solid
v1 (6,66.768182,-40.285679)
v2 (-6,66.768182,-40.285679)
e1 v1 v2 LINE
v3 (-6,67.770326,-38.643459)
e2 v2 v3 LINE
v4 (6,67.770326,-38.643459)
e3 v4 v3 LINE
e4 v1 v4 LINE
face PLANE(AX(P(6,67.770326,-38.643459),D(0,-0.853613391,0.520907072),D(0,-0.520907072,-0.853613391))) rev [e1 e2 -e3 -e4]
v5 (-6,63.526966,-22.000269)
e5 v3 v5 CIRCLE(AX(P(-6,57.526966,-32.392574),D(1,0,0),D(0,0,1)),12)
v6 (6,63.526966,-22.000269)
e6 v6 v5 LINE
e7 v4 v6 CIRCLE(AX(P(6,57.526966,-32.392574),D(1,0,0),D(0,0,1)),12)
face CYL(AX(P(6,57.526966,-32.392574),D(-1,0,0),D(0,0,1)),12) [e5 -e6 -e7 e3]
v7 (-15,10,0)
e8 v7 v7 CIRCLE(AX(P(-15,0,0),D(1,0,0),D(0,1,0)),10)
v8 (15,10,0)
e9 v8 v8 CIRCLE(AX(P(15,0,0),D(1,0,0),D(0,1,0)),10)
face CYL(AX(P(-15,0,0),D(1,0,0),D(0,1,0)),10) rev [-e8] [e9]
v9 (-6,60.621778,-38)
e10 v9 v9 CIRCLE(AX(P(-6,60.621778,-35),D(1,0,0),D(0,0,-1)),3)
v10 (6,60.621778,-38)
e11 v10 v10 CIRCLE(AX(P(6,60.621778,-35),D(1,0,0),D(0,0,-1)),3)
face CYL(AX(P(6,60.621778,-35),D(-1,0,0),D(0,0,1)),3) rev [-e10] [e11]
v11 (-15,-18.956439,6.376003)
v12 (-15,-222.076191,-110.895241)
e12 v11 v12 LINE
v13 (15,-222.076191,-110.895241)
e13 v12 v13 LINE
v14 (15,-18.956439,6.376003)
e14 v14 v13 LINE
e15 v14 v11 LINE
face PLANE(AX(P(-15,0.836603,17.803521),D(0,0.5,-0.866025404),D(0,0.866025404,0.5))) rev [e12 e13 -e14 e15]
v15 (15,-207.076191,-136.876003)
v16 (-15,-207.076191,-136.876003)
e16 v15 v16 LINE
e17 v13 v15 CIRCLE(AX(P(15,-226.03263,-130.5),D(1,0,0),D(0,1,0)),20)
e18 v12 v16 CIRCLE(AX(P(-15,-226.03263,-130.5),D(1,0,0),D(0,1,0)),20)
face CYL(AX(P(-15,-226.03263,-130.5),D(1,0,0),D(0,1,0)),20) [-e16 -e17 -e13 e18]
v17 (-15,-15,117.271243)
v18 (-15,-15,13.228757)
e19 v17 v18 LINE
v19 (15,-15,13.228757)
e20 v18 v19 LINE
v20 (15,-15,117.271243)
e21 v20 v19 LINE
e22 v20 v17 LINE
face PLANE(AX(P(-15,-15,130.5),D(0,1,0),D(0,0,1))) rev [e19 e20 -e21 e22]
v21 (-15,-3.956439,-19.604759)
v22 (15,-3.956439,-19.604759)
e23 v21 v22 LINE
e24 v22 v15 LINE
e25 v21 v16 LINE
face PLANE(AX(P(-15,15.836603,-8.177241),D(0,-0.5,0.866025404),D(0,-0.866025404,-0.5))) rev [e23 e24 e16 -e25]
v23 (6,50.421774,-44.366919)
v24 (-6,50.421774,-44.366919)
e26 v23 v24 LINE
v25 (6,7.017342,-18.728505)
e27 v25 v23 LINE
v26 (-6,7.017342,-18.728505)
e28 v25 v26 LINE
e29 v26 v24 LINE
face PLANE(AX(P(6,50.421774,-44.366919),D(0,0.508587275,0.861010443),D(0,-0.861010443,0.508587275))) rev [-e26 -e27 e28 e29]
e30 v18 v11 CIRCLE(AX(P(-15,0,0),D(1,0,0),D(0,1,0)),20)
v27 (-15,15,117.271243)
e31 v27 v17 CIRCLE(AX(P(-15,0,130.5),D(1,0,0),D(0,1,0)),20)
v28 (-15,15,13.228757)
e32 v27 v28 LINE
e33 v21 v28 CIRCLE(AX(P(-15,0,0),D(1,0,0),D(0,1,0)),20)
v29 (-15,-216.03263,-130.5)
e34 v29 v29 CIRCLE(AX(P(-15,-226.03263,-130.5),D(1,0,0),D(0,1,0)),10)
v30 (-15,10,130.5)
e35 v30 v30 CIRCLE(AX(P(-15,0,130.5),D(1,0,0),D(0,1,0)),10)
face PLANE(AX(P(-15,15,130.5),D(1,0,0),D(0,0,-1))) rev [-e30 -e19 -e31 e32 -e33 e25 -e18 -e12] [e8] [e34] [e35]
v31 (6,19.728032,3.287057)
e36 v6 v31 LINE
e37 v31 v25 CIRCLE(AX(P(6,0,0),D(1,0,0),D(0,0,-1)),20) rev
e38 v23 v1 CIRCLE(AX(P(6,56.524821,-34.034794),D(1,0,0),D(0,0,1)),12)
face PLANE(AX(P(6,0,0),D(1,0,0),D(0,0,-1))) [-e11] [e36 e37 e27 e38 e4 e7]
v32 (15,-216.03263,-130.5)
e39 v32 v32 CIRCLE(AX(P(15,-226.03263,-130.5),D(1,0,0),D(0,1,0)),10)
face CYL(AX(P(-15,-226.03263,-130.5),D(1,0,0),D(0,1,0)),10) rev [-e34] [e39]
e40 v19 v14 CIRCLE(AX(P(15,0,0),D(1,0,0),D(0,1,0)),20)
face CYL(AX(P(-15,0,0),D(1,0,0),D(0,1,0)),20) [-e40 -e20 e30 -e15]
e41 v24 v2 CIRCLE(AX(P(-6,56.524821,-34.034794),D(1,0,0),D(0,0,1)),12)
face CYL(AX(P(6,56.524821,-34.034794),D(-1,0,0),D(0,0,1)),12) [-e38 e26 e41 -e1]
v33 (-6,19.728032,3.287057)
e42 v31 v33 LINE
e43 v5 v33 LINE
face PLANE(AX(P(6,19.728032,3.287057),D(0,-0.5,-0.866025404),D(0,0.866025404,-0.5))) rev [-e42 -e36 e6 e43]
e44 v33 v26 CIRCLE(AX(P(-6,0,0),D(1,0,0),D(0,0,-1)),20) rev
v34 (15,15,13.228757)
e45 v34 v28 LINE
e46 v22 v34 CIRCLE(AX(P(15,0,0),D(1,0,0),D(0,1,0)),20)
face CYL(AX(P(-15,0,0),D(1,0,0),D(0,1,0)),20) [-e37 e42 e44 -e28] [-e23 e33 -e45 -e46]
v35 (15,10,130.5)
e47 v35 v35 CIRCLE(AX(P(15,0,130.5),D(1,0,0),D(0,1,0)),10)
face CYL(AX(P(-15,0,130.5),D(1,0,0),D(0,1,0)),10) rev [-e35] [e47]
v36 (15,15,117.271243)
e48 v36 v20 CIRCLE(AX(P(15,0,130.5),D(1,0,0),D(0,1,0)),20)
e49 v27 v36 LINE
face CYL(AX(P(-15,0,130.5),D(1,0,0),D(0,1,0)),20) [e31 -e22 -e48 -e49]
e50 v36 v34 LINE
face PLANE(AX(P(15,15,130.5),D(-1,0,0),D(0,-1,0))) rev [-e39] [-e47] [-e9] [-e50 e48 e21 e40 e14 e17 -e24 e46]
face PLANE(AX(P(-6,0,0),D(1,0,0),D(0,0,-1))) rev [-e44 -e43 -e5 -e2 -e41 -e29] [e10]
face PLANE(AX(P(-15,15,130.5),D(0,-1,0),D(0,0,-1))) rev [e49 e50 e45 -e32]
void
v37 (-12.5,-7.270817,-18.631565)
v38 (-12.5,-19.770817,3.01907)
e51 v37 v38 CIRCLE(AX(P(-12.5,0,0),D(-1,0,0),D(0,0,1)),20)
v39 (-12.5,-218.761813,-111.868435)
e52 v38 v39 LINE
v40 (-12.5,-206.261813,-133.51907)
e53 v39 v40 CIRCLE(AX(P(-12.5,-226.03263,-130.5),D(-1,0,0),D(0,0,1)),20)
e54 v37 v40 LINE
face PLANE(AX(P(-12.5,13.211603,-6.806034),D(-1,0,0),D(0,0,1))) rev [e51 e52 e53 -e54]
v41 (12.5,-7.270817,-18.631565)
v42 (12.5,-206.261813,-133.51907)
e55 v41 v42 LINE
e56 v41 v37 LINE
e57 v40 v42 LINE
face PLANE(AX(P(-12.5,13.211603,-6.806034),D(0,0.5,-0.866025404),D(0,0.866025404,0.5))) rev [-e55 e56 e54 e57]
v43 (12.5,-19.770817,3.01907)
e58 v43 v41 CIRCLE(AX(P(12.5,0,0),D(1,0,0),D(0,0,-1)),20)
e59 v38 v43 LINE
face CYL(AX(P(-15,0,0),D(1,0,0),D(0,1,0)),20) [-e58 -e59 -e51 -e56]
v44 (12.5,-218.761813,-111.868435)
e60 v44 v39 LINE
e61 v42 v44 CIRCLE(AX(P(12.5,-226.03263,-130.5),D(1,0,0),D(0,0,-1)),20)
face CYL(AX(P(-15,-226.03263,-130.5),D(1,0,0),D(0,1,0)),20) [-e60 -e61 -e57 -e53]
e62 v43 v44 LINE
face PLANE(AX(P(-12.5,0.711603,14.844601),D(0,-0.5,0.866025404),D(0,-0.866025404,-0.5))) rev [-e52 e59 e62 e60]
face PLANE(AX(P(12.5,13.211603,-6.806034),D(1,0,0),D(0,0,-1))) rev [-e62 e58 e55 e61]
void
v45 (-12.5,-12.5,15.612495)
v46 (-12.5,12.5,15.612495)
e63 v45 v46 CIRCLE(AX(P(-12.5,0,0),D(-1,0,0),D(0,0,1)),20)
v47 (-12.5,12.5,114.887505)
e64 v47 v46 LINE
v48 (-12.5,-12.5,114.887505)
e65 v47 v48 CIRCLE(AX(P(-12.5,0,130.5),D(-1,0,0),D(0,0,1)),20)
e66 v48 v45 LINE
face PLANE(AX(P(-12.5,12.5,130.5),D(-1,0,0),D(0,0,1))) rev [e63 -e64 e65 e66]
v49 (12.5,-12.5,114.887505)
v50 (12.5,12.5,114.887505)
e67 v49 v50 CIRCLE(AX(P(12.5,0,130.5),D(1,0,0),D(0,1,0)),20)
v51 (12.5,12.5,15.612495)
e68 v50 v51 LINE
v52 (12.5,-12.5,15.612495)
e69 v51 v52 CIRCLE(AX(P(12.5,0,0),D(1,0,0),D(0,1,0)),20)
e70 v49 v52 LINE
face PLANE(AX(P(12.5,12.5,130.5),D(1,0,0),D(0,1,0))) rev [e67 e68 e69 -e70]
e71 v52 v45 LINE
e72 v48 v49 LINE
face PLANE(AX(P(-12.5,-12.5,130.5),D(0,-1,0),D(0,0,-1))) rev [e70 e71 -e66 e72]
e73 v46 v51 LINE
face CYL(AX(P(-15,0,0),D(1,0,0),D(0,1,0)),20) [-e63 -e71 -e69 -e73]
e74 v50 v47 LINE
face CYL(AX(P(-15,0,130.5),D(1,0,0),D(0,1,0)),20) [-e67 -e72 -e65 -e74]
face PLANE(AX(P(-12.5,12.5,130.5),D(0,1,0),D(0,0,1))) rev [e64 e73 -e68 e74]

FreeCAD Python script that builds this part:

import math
import FreeCAD as App
import Part
import Sketcher
from FreeCAD import Vector
Q = App.Units.Quantity


def add_polygon(sketch, points):
    """Adds a closed chain of lines whose ends are joined by coincident constraints."""
    first, n = sketch.GeometryCount, len(points)
    for a, b in zip(points, points[1:] + points[:1]):
        sketch.addGeometry(Part.LineSegment(App.Vector(*a, 0), App.Vector(*b, 0)), False)
    for i in range(n):
        sketch.addConstraint(Sketcher.Constraint("Coincident", first + i, 2, first + (i + 1) % n, 1))

doc = App.newDocument("Part")
body = doc.addObject("PartDesign::Body", "Body")

# Sketch on XY plane
sketch1 = doc.addObject("Sketcher::SketchObject", "Sketch")
body.addObject(sketch1)
sketch1.AttachmentSupport = (doc.XY_Plane, [""])
sketch1.MapMode = "FlatFace"
sketch1.AttachmentOffset = App.Placement(Vector(0, 0, 130.5), App.Rotation())
add_polygon(sketch1, [(-15, 15), (-15, -15), (15, -15), (15, 15)])  # lines 0-3
add_polygon(sketch1, [(12, -12), (-12, -12), (-12, 12), (12, 12)])  # lines 4-7
sketch1.addConstraint(Sketcher.Constraint("Vertical", 0))
sketch1.addConstraint(Sketcher.Constraint("Horizontal", 1))
sketch1.addConstraint(Sketcher.Constraint("Vertical", 2))
sketch1.addConstraint(Sketcher.Constraint("Horizontal", 3))
sketch1.addConstraint(Sketcher.Constraint("Horizontal", 4))
sketch1.addConstraint(Sketcher.Constraint("Vertical", 5))
sketch1.addConstraint(Sketcher.Constraint("Horizontal", 6))
sketch1.addConstraint(Sketcher.Constraint("Vertical", 7))
sketch1.addConstraint(Sketcher.Constraint("Symmetric", 0, 2, 2, 2, -1, 1))
sketch1.addConstraint(Sketcher.Constraint("Symmetric", 4, 2, 6, 2, -1, 1))
sketch1.addConstraint(Sketcher.Constraint("Equal", 3, 0))
sketch1.addConstraint(Sketcher.Constraint("Equal", 6, 5))
sketch1.addConstraint(Sketcher.Constraint("DistanceX", 1, 1, 1, 2, 30.0))
sketch1.addConstraint(Sketcher.Constraint("DistanceX", 4, 2, 4, 1, 25.0))

# Sketch on YZ plane
sketch2 = doc.addObject("Sketcher::SketchObject", "Sketch001")
body.addObject(sketch2)
sketch2.AttachmentSupport = (doc.YZ_Plane, [""])
sketch2.MapMode = "FlatFace"
sketch2.addGeometry(Part.LineSegment(Vector(0, 130, 0), Vector(0, 0, 0)), False)
sketch2.addGeometry(Part.LineSegment(Vector(0, 0, 0), Vector(-226, -130, 0)), False)
sketch2.addConstraint(Sketcher.Constraint("Coincident", 0, 2, 1, 1))
sketch2.addConstraint(Sketcher.Constraint("Vertical", 0))
sketch2.addConstraint(Sketcher.Constraint("Coincident", 0, 2, -1, 1))
sketch2.addConstraint(Sketcher.Constraint("Angle", 1, Q("-150 deg")))
sketch2.addConstraint(Sketcher.Constraint("Distance", 1, 261.0))
sketch2.addConstraint(Sketcher.Constraint("DistanceY", 0, 2, 0, 1, 130.5))
doc.recompute()

additivepipe = doc.addObject("PartDesign::AdditivePipe", "AdditivePipe")
body.addObject(additivepipe)
additivepipe.Profile = sketch1
additivepipe.Spine = (sketch2, ["Edge1", "Edge2"])
additivepipe.Transition = "Right corner"

# Sketch on YZ plane
sketch3 = doc.addObject("Sketcher::SketchObject", "Sketch002")
body.addObject(sketch3)
sketch3.AttachmentSupport = (doc.YZ_Plane, [""])
sketch3.MapMode = "FlatFace"
sketch3.AttachmentOffset = App.Placement(Vector(0, 0, 15), App.Rotation())
sketch3.addGeometry(Part.Circle(Vector(0, 0, 0), Vector(0, 0, 1), 20), False)
sketch3.addGeometry(Part.Circle(Vector(0, 130, 0), Vector(0, 0, 1), 20), False)
sketch3.addGeometry(Part.Circle(Vector(-226, -130, 0), Vector(0, 0, 1), 20), False)
sketch3.addConstraint(Sketcher.Constraint("Coincident", 0, 3, -1, 1))
sketch3.addConstraint(Sketcher.Constraint("Equal", 0, 1))
sketch3.addConstraint(Sketcher.Constraint("Equal", 1, 2))
sketch3.addConstraint(Sketcher.Constraint("PointOnObject", 1, 3, -2))
sketch3.addConstraint(Sketcher.Constraint("Diameter", 0, 40.0))
sketch3.addConstraint(Sketcher.Constraint("DistanceY", 2, 3, 1, 3, 261.0))
sketch3.addConstraint(Sketcher.Constraint("DistanceY", -1, 1, 1, 3, 130.5))
sketch3.addConstraint(Sketcher.Constraint("DistanceX", 2, 3, -1, 1, 226.03263))
pad1 = doc.addObject("PartDesign::Pad", "Pad")
body.addObject(pad1)
pad1.Profile = sketch3
pad1.Length = 30
pad1.Reversed = True

# Sketch on YZ plane
sketch4 = doc.addObject("Sketcher::SketchObject", "Sketch003")
body.addObject(sketch4)
sketch4.AttachmentSupport = (doc.YZ_Plane, [""])
sketch4.MapMode = "FlatFace"
sketch4.AttachmentOffset = App.Placement(Vector(0, 0, 15), App.Rotation())
sketch4.addGeometry(Part.Circle(Vector(0, 0, 0), Vector(0, 0, 1), 10), False)
sketch4.addGeometry(Part.Circle(Vector(0, 130, 0), Vector(0, 0, 1), 10), False)
sketch4.addGeometry(Part.Circle(Vector(-226, -130, 0), Vector(0, 0, 1), 10), False)
sketch4.addConstraint(Sketcher.Constraint("Coincident", 0, 3, -1, 1))
sketch4.addConstraint(Sketcher.Constraint("Equal", 0, 1))
sketch4.addConstraint(Sketcher.Constraint("Equal", 1, 2))
sketch4.addConstraint(Sketcher.Constraint("PointOnObject", 1, 3, -2))
sketch4.addConstraint(Sketcher.Constraint("Diameter", 0, 20.0))
sketch4.addConstraint(Sketcher.Constraint("DistanceY", 2, 3, 1, 3, 261.0))
sketch4.addConstraint(Sketcher.Constraint("DistanceY", -1, 1, 1, 3, 130.5))
sketch4.addConstraint(Sketcher.Constraint("DistanceX", 2, 3, -1, 1, 226.03263))
pocket1 = doc.addObject("PartDesign::Pocket", "Pocket")
body.addObject(pocket1)
pocket1.Profile = sketch4
pocket1.Length = 30

# Sketch on YZ plane
sketch5 = doc.addObject("Sketcher::SketchObject", "Sketch004")
body.addObject(sketch5)
sketch5.AttachmentSupport = (doc.YZ_Plane, [""])
sketch5.MapMode = "FlatFace"
sketch5.addGeometry(Part.LineSegment(Vector(1.7, -9.9, 0), Vector(-4, -19.6, 0)), False)
sketch5.addGeometry(Part.ArcOfCircle(Part.Circle(Vector(0, 0, 0), Vector(0, 0, 1), 20), math.radians(-101), math.radians(-69)), False)
sketch5.addGeometry(Part.LineSegment(Vector(7, -18.7, 0), Vector(50.4, -44.4, 0)), False)
sketch5.addGeometry(Part.ArcOfCircle(Part.Circle(Vector(56.5, -34, 0), Vector(0, 0, 1), 12), math.radians(-121), math.radians(-31)), False)
sketch5.addGeometry(Part.LineSegment(Vector(66.8, -40.3, 0), Vector(67.8, -38.6, 0)), False)
sketch5.addGeometry(Part.ArcOfCircle(Part.Circle(Vector(57.5, -32.4, 0), Vector(0, 0, 1), 12), math.radians(-31), math.radians(60)), False)
sketch5.addGeometry(Part.LineSegment(Vector(63.5, -22, 0), Vector(19.7, 3.3, 0)), False)
sketch5.addGeometry(Part.ArcOfCircle(Part.Circle(Vector(0, 0, 0), Vector(0, 0, 1), 20), math.radians(9), math.radians(41)), False)
sketch5.addGeometry(Part.LineSegment(Vector(15, 13.2, 0), Vector(9.4, 3.5, 0)), False)
sketch5.addGeometry(Part.ArcOfCircle(Part.Circle(Vector(0, 0, 0), Vector(0, 0, 1), 10), math.radians(-80), math.radians(20)), False)
sketch5.addGeometry(Part.Circle(Vector(60.6, -35, 0), Vector(0, 0, 1), 3), False)
sketch5.addConstraint(Sketcher.Constraint("Coincident", 0, 2, 1, 1))
sketch5.addConstraint(Sketcher.Constraint("Coincident", 1, 2, 2, 1))
sketch5.addConstraint(Sketcher.Constraint("Tangent", 2, 2, 3, 1))
sketch5.addConstraint(Sketcher.Constraint("Tangent", 3, 2, 4, 1))
sketch5.addConstraint(Sketcher.Constraint("Tangent", 4, 2, 5, 1))
sketch5.addConstraint(Sketcher.Constraint("Tangent", 5, 2, 6, 1))
sketch5.addConstraint(Sketcher.Constraint("Coincident", 6, 2, 7, 1))
sketch5.addConstraint(Sketcher.Constraint("Coincident", 7, 2, 8, 1))
sketch5.addConstraint(Sketcher.Constraint("Coincident", 8, 2, 9, 2))
sketch5.addConstraint(Sketcher.Constraint("Coincident", 9, 1, 0, 1))
sketch5.addConstraint(Sketcher.Constraint("Coincident", 1, 3, -1, 1))
sketch5.addConstraint(Sketcher.Constraint("Coincident", 7, 3, -1, 1))
sketch5.addConstraint(Sketcher.Constraint("Coincident", 9, 3, -1, 1))
sketch5.addConstraint(Sketcher.Constraint("Equal", 3, 5))
sketch5.addConstraint(Sketcher.Constraint("Equal", 1, 7))
sketch5.addConstraint(Sketcher.Constraint("Perpendicular", 0, 6))
sketch5.addConstraint(Sketcher.Constraint("Perpendicular", 6, 8))
sketch5.addConstraint(Sketcher.Constraint("Equal", 0, 8))
sketch5.addConstraint(Sketcher.Constraint("Diameter", 10, 6.0))
sketch5.addConstraint(Sketcher.Constraint("Radius", 1, 20.0))
sketch5.addConstraint(Sketcher.Constraint("Radius", 3, 12.0))
sketch5.addConstraint(Sketcher.Constraint("Radius", 9, 10.0))
sketch5.addConstraint(Sketcher.Constraint("Angle", 0, Q("-120 deg")))
sketch5.addConstraint(Sketcher.Constraint("DistanceY", 10, 3, -1, 1, 35.0))
sketch5.addConstraint(Sketcher.Constraint("DistanceX", -1, 1, 7, 2, 15.0))
sketch5.addConstraint(Sketcher.Constraint("DistanceY", 6, 2, 7, 2, 9.9417))
sketch5.addConstraint(Sketcher.Constraint("DistanceX", 9, 1, 1, 2, 5.347398))
sketch5.addConstraint(Sketcher.Constraint("Distance", 2, 50.411041))
sketch5.addConstraint(Sketcher.Constraint("Distance", 6, 50.574652))
sketch5.addConstraint(Sketcher.Constraint("DistanceX", -1, 1, 3, 3, 56.524821))
sketch5.addConstraint(Sketcher.Constraint("DistanceX", -1, 1, 10, 3, 60.621778))
pad2 = doc.addObject("PartDesign::Pad", "Pad001")
body.addObject(pad2)
pad2.Profile = sketch5
pad2.Length = 12
pad2.Midplane = True

doc.recompute()
